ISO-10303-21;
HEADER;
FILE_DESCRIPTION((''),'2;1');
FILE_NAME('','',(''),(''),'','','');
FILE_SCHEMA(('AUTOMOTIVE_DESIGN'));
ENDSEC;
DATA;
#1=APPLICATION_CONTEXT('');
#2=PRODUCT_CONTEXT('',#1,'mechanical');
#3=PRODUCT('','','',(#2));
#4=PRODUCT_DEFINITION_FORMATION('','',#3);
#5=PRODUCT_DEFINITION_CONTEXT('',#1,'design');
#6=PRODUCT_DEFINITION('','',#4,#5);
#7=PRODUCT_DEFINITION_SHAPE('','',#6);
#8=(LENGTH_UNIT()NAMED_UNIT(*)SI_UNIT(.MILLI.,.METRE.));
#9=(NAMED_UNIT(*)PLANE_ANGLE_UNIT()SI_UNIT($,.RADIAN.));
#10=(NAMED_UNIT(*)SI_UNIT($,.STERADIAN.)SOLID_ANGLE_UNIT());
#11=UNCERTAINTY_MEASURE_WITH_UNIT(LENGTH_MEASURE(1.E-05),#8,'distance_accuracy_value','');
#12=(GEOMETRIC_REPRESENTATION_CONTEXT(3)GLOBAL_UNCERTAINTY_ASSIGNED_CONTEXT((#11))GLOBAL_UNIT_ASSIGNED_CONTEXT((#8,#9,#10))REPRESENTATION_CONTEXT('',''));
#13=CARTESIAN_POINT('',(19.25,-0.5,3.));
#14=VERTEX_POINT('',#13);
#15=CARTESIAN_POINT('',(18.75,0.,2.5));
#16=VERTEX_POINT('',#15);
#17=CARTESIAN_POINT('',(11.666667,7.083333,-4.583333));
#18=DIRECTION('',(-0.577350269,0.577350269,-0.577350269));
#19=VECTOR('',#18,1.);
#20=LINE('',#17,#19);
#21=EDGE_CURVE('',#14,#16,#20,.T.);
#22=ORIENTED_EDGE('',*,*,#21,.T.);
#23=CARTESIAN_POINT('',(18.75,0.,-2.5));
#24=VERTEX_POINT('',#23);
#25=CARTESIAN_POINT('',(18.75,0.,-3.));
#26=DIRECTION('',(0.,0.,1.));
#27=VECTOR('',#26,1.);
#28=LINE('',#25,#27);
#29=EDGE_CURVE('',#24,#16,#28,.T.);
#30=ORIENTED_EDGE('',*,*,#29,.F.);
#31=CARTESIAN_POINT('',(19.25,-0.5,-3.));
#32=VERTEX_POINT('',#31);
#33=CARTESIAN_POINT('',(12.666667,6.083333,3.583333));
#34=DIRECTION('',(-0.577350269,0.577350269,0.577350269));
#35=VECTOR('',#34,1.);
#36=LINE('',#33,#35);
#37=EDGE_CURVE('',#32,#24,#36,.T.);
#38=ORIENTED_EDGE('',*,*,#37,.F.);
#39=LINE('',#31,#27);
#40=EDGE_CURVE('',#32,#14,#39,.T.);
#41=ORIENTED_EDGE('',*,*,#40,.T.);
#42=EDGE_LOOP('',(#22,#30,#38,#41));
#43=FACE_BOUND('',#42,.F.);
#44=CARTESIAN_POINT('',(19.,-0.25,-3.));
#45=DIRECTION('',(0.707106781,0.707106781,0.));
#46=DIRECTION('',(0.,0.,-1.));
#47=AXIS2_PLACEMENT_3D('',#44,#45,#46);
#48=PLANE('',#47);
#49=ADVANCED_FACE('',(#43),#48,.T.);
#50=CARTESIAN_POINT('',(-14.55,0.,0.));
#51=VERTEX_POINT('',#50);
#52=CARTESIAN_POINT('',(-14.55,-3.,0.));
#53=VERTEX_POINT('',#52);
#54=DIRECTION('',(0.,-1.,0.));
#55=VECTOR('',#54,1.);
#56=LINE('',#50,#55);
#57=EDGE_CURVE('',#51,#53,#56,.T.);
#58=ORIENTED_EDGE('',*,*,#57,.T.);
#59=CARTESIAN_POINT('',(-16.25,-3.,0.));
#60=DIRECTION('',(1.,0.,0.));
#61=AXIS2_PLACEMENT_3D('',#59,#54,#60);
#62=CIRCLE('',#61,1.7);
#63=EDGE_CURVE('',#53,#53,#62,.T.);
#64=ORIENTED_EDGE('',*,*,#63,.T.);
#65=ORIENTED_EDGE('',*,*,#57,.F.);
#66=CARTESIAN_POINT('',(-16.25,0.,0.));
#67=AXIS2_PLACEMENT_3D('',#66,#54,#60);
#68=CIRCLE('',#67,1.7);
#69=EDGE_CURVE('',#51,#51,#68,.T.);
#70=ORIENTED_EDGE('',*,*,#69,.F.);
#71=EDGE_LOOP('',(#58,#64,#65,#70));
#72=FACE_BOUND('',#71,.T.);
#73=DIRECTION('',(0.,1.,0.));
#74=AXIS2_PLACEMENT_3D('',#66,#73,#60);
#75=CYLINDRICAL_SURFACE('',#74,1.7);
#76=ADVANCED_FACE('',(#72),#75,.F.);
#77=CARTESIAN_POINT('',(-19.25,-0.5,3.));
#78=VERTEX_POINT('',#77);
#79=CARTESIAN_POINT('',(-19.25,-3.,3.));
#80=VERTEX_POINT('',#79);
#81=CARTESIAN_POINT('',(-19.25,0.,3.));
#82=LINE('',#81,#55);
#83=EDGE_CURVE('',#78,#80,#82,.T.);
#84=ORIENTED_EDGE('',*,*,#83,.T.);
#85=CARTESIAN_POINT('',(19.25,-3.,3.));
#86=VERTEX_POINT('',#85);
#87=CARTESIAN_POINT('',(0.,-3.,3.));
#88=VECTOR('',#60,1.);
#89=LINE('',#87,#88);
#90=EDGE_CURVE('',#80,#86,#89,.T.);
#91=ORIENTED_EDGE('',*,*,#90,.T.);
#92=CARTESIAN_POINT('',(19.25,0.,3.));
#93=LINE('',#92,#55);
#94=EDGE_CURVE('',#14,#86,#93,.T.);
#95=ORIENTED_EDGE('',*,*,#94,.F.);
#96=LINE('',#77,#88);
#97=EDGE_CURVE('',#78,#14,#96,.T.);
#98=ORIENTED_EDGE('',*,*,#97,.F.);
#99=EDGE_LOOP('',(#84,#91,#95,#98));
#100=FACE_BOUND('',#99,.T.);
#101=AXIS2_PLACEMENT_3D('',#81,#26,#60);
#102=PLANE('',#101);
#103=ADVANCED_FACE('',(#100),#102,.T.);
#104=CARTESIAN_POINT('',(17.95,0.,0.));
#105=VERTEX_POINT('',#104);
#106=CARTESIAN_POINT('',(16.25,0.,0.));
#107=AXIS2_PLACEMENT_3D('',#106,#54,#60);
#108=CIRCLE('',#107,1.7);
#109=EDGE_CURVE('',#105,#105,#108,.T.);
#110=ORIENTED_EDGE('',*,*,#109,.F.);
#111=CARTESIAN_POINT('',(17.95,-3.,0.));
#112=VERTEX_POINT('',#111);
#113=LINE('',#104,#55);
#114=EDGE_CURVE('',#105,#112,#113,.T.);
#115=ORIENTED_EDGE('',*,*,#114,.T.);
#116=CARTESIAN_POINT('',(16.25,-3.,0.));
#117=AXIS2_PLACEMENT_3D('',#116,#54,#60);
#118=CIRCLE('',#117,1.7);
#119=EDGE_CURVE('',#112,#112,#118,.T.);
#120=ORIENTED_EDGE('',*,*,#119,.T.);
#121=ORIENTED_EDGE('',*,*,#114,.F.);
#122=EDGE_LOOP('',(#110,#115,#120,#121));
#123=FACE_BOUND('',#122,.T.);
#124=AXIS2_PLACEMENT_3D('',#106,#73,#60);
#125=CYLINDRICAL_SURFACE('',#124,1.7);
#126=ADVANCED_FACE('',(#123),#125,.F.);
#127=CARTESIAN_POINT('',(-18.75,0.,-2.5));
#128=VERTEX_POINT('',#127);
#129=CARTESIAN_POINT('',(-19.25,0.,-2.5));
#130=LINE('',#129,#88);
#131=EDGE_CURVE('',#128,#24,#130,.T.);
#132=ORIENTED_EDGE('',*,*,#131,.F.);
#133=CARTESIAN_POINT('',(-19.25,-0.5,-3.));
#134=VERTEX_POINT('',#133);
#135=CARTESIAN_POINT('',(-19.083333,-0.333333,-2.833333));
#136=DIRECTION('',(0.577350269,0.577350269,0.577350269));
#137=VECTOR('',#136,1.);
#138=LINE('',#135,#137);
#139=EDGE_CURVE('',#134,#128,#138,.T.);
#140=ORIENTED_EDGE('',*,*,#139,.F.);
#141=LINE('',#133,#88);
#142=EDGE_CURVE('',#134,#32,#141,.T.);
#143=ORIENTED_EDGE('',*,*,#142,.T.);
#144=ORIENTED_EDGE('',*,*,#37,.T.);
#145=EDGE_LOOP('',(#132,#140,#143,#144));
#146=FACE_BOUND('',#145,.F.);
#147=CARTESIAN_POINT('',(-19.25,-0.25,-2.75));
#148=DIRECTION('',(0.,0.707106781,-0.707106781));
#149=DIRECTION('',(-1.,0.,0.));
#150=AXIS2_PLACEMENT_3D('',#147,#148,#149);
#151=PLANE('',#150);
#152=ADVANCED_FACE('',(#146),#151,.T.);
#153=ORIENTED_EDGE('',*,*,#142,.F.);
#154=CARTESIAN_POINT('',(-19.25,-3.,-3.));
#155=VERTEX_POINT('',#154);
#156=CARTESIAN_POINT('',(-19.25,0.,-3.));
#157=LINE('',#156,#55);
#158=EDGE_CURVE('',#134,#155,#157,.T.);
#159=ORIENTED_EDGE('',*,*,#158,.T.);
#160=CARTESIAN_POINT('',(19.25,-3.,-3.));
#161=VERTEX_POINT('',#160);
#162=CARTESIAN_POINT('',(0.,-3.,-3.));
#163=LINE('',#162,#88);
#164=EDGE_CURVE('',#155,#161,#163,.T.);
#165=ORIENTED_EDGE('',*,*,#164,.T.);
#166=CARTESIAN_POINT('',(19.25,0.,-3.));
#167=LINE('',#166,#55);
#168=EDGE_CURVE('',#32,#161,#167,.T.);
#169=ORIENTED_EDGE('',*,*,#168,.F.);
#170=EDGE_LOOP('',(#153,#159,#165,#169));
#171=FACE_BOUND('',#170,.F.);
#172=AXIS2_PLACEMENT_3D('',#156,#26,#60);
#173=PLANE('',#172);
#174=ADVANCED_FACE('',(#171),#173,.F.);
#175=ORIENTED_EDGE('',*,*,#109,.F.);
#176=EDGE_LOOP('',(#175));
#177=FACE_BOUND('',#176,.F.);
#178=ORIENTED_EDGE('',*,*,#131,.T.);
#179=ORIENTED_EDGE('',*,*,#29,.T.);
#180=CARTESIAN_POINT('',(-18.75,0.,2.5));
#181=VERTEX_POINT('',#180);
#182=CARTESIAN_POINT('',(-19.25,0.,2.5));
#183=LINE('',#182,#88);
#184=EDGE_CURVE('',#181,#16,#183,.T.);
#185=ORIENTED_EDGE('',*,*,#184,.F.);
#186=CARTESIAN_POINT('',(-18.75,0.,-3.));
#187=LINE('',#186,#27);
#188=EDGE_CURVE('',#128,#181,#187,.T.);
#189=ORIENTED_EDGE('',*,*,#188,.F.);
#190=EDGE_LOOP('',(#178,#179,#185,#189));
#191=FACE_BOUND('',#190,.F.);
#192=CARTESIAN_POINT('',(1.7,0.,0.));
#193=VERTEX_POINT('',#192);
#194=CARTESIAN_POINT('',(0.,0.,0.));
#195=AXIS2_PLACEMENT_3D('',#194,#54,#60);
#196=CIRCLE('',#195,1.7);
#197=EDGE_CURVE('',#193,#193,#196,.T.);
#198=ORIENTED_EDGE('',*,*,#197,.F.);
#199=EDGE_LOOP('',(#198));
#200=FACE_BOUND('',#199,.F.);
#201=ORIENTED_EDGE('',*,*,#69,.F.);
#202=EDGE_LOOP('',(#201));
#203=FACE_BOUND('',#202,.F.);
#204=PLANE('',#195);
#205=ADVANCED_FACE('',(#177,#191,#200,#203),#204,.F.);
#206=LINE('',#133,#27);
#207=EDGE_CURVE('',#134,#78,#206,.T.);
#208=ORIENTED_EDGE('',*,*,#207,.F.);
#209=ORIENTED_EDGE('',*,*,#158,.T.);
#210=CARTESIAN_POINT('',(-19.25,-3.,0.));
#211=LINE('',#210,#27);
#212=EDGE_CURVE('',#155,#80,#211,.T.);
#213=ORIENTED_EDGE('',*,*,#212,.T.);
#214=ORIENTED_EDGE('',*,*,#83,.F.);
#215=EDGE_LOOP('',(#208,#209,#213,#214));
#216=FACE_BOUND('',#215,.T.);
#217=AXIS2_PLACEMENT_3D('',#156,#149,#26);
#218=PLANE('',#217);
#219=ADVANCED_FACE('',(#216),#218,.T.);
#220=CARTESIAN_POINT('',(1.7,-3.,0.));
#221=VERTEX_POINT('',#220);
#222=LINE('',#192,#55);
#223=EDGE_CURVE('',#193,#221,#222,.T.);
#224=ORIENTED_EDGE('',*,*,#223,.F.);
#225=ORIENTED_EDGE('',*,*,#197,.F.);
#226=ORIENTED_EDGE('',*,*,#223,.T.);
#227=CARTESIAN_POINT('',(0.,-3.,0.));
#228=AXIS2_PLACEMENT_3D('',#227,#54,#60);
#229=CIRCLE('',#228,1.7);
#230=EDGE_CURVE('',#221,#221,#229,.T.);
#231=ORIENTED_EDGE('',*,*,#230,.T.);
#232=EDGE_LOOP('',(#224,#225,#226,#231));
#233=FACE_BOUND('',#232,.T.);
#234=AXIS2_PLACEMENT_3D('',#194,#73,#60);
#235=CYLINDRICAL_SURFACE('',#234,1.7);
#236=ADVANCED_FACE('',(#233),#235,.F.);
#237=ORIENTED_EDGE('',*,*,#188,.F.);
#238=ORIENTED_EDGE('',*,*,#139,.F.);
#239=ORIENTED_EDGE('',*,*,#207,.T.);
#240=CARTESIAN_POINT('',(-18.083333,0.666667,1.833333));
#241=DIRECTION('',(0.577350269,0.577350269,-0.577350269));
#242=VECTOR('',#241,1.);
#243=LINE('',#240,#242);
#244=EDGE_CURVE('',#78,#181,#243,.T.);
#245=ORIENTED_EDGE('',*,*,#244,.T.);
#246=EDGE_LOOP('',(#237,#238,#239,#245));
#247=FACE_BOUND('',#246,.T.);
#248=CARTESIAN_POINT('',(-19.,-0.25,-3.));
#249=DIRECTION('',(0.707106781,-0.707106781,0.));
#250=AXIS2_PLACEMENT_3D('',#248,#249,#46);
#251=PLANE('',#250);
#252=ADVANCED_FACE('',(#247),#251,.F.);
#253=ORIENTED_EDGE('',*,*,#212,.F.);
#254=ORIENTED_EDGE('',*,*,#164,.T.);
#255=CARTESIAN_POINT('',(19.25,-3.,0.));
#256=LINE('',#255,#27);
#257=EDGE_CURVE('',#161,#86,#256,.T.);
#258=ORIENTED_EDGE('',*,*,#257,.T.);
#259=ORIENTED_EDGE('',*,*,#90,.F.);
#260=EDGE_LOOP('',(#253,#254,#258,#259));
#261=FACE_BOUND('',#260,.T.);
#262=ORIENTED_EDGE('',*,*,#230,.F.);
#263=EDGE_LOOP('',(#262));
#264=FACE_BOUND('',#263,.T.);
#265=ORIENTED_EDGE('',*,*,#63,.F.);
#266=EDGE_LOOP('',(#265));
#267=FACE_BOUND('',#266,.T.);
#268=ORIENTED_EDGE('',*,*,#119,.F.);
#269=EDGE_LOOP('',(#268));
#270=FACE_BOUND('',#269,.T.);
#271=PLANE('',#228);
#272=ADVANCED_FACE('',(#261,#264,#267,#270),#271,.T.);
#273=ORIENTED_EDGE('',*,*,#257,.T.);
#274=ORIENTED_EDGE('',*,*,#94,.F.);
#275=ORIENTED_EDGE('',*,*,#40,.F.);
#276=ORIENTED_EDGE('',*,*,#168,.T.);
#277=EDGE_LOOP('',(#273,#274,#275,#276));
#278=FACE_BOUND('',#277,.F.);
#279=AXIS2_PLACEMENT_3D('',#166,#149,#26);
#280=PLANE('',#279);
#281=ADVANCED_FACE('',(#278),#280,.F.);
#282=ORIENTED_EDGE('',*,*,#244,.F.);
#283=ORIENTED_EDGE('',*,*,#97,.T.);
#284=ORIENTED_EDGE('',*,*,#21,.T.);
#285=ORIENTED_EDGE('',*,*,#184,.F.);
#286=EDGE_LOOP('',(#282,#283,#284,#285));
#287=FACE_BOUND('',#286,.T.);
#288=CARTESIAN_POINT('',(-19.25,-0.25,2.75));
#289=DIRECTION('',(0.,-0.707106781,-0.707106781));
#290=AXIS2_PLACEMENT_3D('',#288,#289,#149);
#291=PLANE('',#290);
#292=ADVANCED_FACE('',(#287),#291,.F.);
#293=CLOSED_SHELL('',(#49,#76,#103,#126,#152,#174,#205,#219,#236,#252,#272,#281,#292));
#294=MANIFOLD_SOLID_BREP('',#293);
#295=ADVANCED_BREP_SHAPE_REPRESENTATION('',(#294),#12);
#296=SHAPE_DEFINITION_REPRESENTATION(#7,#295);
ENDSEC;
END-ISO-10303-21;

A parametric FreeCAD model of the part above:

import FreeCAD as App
import Part
import Sketcher

V = App.Vector
Q = App.Units.Quantity


def edges_at(feature, points):
    """Names of the edges that pass closest to the given points."""
    edges = feature.Shape.Edges
    near = lambda p: min(range(len(edges)), key=lambda i: edges[i].distToShape(Part.Vertex(*p))[0])
    return sorted({f"Edge{near(p) + 1}" for p in points})

doc = App.newDocument("Part")
body = doc.addObject("PartDesign::Body", "Body")

sketch1 = doc.addObject("Sketcher::SketchObject", "Sketch")
body.addObject(sketch1)
sketch1.AttachmentSupport = (doc.XZ_Plane, [""])
sketch1.MapMode = "FlatFace"
sketch1.addGeometry([
    Part.LineSegment(V(-19.2, 3, 0), V(-19.2, -3, 0)),
    Part.LineSegment(V(-19.2, -3, 0), V(19.2, -3, 0)),
    Part.LineSegment(V(19.2, -3, 0), V(19.2, 3, 0)),
    Part.LineSegment(V(19.2, 3, 0), V(-19.2, 3, 0)),
    Part.Circle(V(-16.2, 0, 0), V(0, 0, 1), 1.7),
    Part.Circle(V(0, 0, 0), V(0, 0, 1), 1.7),
    Part.Circle(V(16.2, 0, 0), V(0, 0, 1), 1.7),
], False)
sketch1.addConstraint([
    Sketcher.Constraint("Coincident", 0, 2, 1, 1),
    Sketcher.Constraint("Coincident", 1, 2, 2, 1),
    Sketcher.Constraint("Coincident", 2, 2, 3, 1),
    Sketcher.Constraint("Coincident", 3, 2, 0, 1),
    Sketcher.Constraint("Vertical", 0),
    Sketcher.Constraint("Horizontal", 1),
    Sketcher.Constraint("Vertical", 2),
    Sketcher.Constraint("Horizontal", 3),
    Sketcher.Constraint("Coincident", 5, 3, -1, 1),
    Sketcher.Constraint("Equal", 4, 5),
    Sketcher.Constraint("Equal", 5, 6),
    Sketcher.Constraint("Symmetric", 4, 3, 6, 3, -1, 1),
    Sketcher.Constraint("Symmetric", 0, 2, 2, 2, -1, 1),
    Sketcher.Constraint("PointOnObject", 4, 3, -1),
    Sketcher.Constraint("Diameter", 4, Q("3.4 mm")),
    Sketcher.Constraint("DistanceY", 0, 2, 0, 1, Q("6 mm")),
    Sketcher.Constraint("DistanceX", 1, 1, 1, 2, Q("38.5 mm")),
    Sketcher.Constraint("DistanceX", 0, 2, 4, 3, Q("3 mm")),
])
pad1 = doc.addObject("PartDesign::Pad", "Pad")
body.addObject(pad1)
pad1.Profile = sketch1
pad1.Length = 3
doc.recompute()

chamfer = doc.addObject("PartDesign::Chamfer", "Chamfer")
body.addObject(chamfer)
chamfer.Base = (pad1, edges_at(pad1, [
    (0, 0, -3),
    (19.25, 0, 0),
    (0, 0, 3),
    (-19.25, 0, 0),
]))
chamfer.Size = 0.5

doc.recompute()
